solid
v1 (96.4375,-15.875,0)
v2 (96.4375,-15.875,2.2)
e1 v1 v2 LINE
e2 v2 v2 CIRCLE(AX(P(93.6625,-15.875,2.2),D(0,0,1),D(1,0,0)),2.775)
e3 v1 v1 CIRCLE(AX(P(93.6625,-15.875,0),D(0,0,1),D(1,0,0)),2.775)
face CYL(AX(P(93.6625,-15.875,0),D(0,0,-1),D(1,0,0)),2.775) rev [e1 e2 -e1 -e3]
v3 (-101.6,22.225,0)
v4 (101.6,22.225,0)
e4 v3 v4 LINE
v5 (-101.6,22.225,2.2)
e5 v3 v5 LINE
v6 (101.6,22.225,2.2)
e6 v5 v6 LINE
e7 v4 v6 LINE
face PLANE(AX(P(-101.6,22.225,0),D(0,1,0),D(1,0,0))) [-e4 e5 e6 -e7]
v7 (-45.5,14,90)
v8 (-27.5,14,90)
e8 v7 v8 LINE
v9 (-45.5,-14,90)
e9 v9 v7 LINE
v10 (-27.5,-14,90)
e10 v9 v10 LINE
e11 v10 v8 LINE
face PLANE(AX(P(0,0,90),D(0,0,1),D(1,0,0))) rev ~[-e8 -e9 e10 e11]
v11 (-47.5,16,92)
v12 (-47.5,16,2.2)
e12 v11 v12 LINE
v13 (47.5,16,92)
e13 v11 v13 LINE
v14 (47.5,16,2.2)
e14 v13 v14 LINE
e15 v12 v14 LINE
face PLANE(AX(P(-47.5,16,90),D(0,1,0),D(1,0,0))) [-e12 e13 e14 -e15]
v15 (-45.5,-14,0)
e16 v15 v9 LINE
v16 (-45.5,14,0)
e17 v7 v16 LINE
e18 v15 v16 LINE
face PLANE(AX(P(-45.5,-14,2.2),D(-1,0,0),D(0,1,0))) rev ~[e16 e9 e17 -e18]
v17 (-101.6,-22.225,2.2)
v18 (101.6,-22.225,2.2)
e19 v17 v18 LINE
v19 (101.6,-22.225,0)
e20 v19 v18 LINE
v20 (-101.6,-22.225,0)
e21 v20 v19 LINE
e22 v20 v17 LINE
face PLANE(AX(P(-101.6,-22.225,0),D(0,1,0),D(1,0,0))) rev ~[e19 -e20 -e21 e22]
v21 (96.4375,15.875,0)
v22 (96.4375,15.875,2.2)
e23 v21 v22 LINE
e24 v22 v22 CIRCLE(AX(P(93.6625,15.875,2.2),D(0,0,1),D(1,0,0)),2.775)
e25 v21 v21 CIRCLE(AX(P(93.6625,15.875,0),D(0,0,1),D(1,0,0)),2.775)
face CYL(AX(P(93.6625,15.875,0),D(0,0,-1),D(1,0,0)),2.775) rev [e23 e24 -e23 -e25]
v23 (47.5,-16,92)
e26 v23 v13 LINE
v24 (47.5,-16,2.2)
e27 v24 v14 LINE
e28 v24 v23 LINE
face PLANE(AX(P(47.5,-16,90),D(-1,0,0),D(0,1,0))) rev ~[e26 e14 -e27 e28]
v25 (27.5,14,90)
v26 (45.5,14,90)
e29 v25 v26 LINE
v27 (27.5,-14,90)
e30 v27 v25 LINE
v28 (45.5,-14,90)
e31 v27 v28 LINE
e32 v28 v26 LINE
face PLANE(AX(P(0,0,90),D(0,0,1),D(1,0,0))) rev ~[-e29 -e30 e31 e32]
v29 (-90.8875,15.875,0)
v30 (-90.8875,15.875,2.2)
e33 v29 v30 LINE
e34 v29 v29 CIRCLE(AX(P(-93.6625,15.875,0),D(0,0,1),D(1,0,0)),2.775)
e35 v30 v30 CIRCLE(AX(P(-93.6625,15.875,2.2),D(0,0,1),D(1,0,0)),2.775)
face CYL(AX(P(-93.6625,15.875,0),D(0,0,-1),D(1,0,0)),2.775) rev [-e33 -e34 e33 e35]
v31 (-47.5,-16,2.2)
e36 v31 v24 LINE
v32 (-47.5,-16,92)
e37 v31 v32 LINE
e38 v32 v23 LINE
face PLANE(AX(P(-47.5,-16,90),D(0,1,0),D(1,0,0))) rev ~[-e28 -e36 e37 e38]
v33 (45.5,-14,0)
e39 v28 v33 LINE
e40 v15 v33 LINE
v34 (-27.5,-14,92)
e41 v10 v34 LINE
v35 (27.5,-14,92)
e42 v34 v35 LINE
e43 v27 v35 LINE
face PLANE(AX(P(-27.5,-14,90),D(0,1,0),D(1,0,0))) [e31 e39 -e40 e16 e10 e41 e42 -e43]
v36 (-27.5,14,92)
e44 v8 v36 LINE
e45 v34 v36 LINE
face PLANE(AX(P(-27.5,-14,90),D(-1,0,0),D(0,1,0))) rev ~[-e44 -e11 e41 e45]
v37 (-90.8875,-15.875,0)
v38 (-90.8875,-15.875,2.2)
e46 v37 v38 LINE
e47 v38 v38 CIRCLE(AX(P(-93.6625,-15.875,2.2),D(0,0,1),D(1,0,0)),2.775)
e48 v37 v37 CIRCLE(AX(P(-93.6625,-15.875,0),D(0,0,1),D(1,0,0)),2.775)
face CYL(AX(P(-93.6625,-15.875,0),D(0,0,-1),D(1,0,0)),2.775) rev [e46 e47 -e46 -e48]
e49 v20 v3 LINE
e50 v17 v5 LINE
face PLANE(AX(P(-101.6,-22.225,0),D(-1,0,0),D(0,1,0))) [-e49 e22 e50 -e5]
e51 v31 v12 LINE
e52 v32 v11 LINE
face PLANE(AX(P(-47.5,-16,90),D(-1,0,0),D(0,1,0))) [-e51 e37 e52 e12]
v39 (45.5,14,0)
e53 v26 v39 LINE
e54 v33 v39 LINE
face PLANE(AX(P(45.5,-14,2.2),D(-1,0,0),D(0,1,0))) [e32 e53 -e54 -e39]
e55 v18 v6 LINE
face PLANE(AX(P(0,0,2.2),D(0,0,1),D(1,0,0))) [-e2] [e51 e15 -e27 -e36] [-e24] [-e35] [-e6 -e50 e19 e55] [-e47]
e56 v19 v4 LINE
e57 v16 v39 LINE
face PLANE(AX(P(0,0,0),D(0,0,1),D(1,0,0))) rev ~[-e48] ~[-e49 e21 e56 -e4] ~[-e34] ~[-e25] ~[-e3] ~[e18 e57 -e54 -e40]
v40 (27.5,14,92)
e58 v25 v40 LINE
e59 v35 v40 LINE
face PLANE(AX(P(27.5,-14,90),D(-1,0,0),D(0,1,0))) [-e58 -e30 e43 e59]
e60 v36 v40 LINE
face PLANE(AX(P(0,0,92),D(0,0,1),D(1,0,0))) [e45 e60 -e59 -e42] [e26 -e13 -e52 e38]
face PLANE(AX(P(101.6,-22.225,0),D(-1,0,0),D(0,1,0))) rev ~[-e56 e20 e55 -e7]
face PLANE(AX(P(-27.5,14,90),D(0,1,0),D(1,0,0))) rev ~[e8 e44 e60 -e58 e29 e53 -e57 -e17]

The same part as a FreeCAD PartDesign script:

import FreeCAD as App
import Part
import Sketcher

V = App.Vector
Q = App.Units.Quantity


def add_polygon(sketch, points):
    """Adds a closed chain of lines whose ends are joined by coincident constraints."""
    first, n = sketch.GeometryCount, len(points)
    for a, b in zip(points, points[1:] + points[:1]):
        sketch.addGeometry(Part.LineSegment(App.Vector(*a, 0), App.Vector(*b, 0)), False)
    for i in range(n):
        sketch.addConstraint(Sketcher.Constraint("Coincident", first + i, 2, first + (i + 1) % n, 1))

doc = App.newDocument("Part")
params = doc.addObject("Spreadsheet::Sheet", "Params")
for row, (alias, value) in enumerate([
    ("sketch1_diameter", "5.55 mm"),
    ("sketch1_width", "91 mm"),
    ("sketch1_height", "28 mm"),
    ("sketch1_width2", "203.2 mm"),
    ("sketch1_height2", "44.45 mm"),
    ("pad1_length", "2.2 mm"),
    ("sketch2_width", "95 mm"),
    ("sketch2_width2", "91 mm"),
    ("sketch2_height", "32 mm"),
    ("sketch2_height2", "28 mm"),
    ("pad2_length", "87.8 mm"),
    ("sketch3_width", "95 mm"),
    ("sketch3_width2", "55 mm"),
    ("sketch3_height", "32 mm"),
    ("sketch3_height2", "28 mm"),
    ("pad3_length", "2 mm"),
], start=1):
    params.set(f"A{row}", alias)
    params.set(f"B{row}", "=" + value)
    params.setAlias(f"B{row}", alias)

body = doc.addObject("PartDesign::Body", "Body")

# Sketch on XY plane
sketch1 = doc.addObject("Sketcher::SketchObject", "Sketch")
body.addObject(sketch1)
sketch1.AttachmentSupport = (doc.XY_Plane, [""])
sketch1.MapMode = "FlatFace"
add_polygon(sketch1, [(-101.6, 22.2), (-101.6, -22.2), (101.6, -22.2), (101.6, 22.2)])  # lines 0-3
sketch1.addGeometry(Part.Circle(V(-93.7, -15.9, 0), V(0, 0, 1), 2.8), False)  # 4
sketch1.addGeometry(Part.Circle(V(93.7, -15.9, 0), V(0, 0, 1), 2.8), False)  # 5
add_polygon(sketch1, [(45.5, -14), (-45.5, -14), (-45.5, 14), (45.5, 14)])  # lines 6-9
sketch1.addGeometry(Part.Circle(V(-93.7, 15.9, 0), V(0, 0, 1), 2.8), False)  # 10
sketch1.addGeometry(Part.Circle(V(93.7, 15.9, 0), V(0, 0, 1), 2.8), False)  # 11
sketch1.addConstraint(Sketcher.Constraint("Vertical", 0))
sketch1.addConstraint(Sketcher.Constraint("Horizontal", 1))
sketch1.addConstraint(Sketcher.Constraint("Vertical", 2))
sketch1.addConstraint(Sketcher.Constraint("Horizontal", 3))
sketch1.addConstraint(Sketcher.Constraint("Horizontal", 6))
sketch1.addConstraint(Sketcher.Constraint("Vertical", 7))
sketch1.addConstraint(Sketcher.Constraint("Horizontal", 8))
sketch1.addConstraint(Sketcher.Constraint("Vertical", 9))
sketch1.addConstraint(Sketcher.Constraint("Equal", 4, 5))
sketch1.addConstraint(Sketcher.Constraint("Equal", 5, 10))
sketch1.addConstraint(Sketcher.Constraint("Equal", 10, 11))
sketch1.addConstraint(Sketcher.Constraint("Symmetric", 5, 3, 10, 3, -1, 1))
sketch1.addConstraint(Sketcher.Constraint("Symmetric", 4, 3, 11, 3, -1, 1))
sketch1.addConstraint(Sketcher.Constraint("Symmetric", 0, 2, 2, 2, -1, 1))
sketch1.addConstraint(Sketcher.Constraint("Symmetric", 6, 2, 8, 2, -1, 1))
sketch1.addConstraint(Sketcher.Constraint("Symmetric", 4, 3, 5, 3, -2))
sketch1.addConstraint(Sketcher.Constraint("Diameter", 4, Q("5.55 mm")))
sketch1.addConstraint(Sketcher.Constraint("DistanceX", 6, 2, 6, 1, Q("91 mm")))
sketch1.addConstraint(Sketcher.Constraint("DistanceY", 7, 1, 7, 2, Q("28 mm")))
sketch1.addConstraint(Sketcher.Constraint("DistanceX", 1, 1, 1, 2, Q("203.2 mm")))
sketch1.addConstraint(Sketcher.Constraint("DistanceY", 0, 2, 0, 1, Q("44.45 mm")))
sketch1.addConstraint(Sketcher.Constraint("DistanceY", 0, 2, 10, 3, Q("38.1 mm")))
sketch1.addConstraint(Sketcher.Constraint("DistanceX", 4, 3, 5, 3, Q("187.325 mm")))
sketch1.setExpression("Constraints[24]", "Params.sketch1_diameter")
sketch1.setExpression("Constraints[25]", "Params.sketch1_width")
sketch1.setExpression("Constraints[26]", "Params.sketch1_height")
sketch1.setExpression("Constraints[27]", "Params.sketch1_width2")
sketch1.setExpression("Constraints[28]", "Params.sketch1_height2")
pad1 = doc.addObject("PartDesign::Pad", "Pad")
body.addObject(pad1)
pad1.Profile = sketch1
pad1.setExpression("Length", "Params.pad1_length")

# Sketch on XY plane
sketch2 = doc.addObject("Sketcher::SketchObject", "Sketch001")
body.addObject(sketch2)
sketch2.AttachmentSupport = (doc.XY_Plane, [""])
sketch2.MapMode = "FlatFace"
sketch2.AttachmentOffset = App.Placement(V(0, 0, 2.2), App.Rotation())
add_polygon(sketch2, [(-48, 16), (-48, -16), (48, -16), (48, 16)])  # lines 0-3
add_polygon(sketch2, [(46, -14), (-46, -14), (-46, 14), (46, 14)])  # lines 4-7
sketch2.addConstraint(Sketcher.Constraint("Vertical", 0))
sketch2.addConstraint(Sketcher.Constraint("Horizontal", 1))
sketch2.addConstraint(Sketcher.Constraint("Vertical", 2))
sketch2.addConstraint(Sketcher.Constraint("Horizontal", 3))
sketch2.addConstraint(Sketcher.Constraint("Horizontal", 4))
sketch2.addConstraint(Sketcher.Constraint("Vertical", 5))
sketch2.addConstraint(Sketcher.Constraint("Horizontal", 6))
sketch2.addConstraint(Sketcher.Constraint("Vertical", 7))
sketch2.addConstraint(Sketcher.Constraint("Symmetric", 0, 2, 2, 2, -1, 1))
sketch2.addConstraint(Sketcher.Constraint("Symmetric", 4, 2, 6, 2, -1, 1))
sketch2.addConstraint(Sketcher.Constraint("DistanceX", 1, 1, 1, 2, Q("95 mm")))
sketch2.addConstraint(Sketcher.Constraint("DistanceX", 4, 2, 4, 1, Q("91 mm")))
sketch2.addConstraint(Sketcher.Constraint("DistanceY", 0, 2, 0, 1, Q("32 mm")))
sketch2.addConstraint(Sketcher.Constraint("DistanceY", 5, 1, 5, 2, Q("28 mm")))
sketch2.setExpression("Constraints[18]", "Params.sketch2_width")
sketch2.setExpression("Constraints[19]", "Params.sketch2_width2")
sketch2.setExpression("Constraints[20]", "Params.sketch2_height")
sketch2.setExpression("Constraints[21]", "Params.sketch2_height2")
pad2 = doc.addObject("PartDesign::Pad", "Pad001")
body.addObject(pad2)
pad2.Profile = sketch2
pad2.setExpression("Length", "Params.pad2_length")

# Sketch on XY plane
sketch3 = doc.addObject("Sketcher::SketchObject", "Sketch002")
body.addObject(sketch3)
sketch3.AttachmentSupport = (doc.XY_Plane, [""])
sketch3.MapMode = "FlatFace"
sketch3.AttachmentOffset = App.Placement(V(0, 0, 90), App.Rotation())
add_polygon(sketch3, [(-48, 16), (-48, -16), (48, -16), (48, 16)])  # lines 0-3
add_polygon(sketch3, [(28, -14), (-28, -14), (-28, 14), (28, 14)])  # lines 4-7
sketch3.addConstraint(Sketcher.Constraint("Vertical", 0))
sketch3.addConstraint(Sketcher.Constraint("Horizontal", 1))
sketch3.addConstraint(Sketcher.Constraint("Vertical", 2))
sketch3.addConstraint(Sketcher.Constraint("Horizontal", 3))
sketch3.addConstraint(Sketcher.Constraint("Horizontal", 4))
sketch3.addConstraint(Sketcher.Constraint("Vertical", 5))
sketch3.addConstraint(Sketcher.Constraint("Horizontal", 6))
sketch3.addConstraint(Sketcher.Constraint("Vertical", 7))
sketch3.addConstraint(Sketcher.Constraint("Symmetric", 0, 2, 2, 2, -1, 1))
sketch3.addConstraint(Sketcher.Constraint("Symmetric", 4, 2, 6, 2, -1, 1))
sketch3.addConstraint(Sketcher.Constraint("DistanceX", 1, 1, 1, 2, Q("95 mm")))
sketch3.addConstraint(Sketcher.Constraint("DistanceX", 4, 2, 4, 1, Q("55 mm")))
sketch3.addConstraint(Sketcher.Constraint("DistanceY", 0, 2, 0, 1, Q("32 mm")))
sketch3.addConstraint(Sketcher.Constraint("DistanceY", 5, 1, 5, 2, Q("28 mm")))
sketch3.setExpression("Constraints[18]", "Params.sketch3_width")
sketch3.setExpression("Constraints[19]", "Params.sketch3_width2")
sketch3.setExpression("Constraints[20]", "Params.sketch3_height")
sketch3.setExpression("Constraints[21]", "Params.sketch3_height2")
pad3 = doc.addObject("PartDesign::Pad", "Pad002")
body.addObject(pad3)
pad3.Profile = sketch3
pad3.setExpression("Length", "Params.pad3_length")

doc.recompute()
